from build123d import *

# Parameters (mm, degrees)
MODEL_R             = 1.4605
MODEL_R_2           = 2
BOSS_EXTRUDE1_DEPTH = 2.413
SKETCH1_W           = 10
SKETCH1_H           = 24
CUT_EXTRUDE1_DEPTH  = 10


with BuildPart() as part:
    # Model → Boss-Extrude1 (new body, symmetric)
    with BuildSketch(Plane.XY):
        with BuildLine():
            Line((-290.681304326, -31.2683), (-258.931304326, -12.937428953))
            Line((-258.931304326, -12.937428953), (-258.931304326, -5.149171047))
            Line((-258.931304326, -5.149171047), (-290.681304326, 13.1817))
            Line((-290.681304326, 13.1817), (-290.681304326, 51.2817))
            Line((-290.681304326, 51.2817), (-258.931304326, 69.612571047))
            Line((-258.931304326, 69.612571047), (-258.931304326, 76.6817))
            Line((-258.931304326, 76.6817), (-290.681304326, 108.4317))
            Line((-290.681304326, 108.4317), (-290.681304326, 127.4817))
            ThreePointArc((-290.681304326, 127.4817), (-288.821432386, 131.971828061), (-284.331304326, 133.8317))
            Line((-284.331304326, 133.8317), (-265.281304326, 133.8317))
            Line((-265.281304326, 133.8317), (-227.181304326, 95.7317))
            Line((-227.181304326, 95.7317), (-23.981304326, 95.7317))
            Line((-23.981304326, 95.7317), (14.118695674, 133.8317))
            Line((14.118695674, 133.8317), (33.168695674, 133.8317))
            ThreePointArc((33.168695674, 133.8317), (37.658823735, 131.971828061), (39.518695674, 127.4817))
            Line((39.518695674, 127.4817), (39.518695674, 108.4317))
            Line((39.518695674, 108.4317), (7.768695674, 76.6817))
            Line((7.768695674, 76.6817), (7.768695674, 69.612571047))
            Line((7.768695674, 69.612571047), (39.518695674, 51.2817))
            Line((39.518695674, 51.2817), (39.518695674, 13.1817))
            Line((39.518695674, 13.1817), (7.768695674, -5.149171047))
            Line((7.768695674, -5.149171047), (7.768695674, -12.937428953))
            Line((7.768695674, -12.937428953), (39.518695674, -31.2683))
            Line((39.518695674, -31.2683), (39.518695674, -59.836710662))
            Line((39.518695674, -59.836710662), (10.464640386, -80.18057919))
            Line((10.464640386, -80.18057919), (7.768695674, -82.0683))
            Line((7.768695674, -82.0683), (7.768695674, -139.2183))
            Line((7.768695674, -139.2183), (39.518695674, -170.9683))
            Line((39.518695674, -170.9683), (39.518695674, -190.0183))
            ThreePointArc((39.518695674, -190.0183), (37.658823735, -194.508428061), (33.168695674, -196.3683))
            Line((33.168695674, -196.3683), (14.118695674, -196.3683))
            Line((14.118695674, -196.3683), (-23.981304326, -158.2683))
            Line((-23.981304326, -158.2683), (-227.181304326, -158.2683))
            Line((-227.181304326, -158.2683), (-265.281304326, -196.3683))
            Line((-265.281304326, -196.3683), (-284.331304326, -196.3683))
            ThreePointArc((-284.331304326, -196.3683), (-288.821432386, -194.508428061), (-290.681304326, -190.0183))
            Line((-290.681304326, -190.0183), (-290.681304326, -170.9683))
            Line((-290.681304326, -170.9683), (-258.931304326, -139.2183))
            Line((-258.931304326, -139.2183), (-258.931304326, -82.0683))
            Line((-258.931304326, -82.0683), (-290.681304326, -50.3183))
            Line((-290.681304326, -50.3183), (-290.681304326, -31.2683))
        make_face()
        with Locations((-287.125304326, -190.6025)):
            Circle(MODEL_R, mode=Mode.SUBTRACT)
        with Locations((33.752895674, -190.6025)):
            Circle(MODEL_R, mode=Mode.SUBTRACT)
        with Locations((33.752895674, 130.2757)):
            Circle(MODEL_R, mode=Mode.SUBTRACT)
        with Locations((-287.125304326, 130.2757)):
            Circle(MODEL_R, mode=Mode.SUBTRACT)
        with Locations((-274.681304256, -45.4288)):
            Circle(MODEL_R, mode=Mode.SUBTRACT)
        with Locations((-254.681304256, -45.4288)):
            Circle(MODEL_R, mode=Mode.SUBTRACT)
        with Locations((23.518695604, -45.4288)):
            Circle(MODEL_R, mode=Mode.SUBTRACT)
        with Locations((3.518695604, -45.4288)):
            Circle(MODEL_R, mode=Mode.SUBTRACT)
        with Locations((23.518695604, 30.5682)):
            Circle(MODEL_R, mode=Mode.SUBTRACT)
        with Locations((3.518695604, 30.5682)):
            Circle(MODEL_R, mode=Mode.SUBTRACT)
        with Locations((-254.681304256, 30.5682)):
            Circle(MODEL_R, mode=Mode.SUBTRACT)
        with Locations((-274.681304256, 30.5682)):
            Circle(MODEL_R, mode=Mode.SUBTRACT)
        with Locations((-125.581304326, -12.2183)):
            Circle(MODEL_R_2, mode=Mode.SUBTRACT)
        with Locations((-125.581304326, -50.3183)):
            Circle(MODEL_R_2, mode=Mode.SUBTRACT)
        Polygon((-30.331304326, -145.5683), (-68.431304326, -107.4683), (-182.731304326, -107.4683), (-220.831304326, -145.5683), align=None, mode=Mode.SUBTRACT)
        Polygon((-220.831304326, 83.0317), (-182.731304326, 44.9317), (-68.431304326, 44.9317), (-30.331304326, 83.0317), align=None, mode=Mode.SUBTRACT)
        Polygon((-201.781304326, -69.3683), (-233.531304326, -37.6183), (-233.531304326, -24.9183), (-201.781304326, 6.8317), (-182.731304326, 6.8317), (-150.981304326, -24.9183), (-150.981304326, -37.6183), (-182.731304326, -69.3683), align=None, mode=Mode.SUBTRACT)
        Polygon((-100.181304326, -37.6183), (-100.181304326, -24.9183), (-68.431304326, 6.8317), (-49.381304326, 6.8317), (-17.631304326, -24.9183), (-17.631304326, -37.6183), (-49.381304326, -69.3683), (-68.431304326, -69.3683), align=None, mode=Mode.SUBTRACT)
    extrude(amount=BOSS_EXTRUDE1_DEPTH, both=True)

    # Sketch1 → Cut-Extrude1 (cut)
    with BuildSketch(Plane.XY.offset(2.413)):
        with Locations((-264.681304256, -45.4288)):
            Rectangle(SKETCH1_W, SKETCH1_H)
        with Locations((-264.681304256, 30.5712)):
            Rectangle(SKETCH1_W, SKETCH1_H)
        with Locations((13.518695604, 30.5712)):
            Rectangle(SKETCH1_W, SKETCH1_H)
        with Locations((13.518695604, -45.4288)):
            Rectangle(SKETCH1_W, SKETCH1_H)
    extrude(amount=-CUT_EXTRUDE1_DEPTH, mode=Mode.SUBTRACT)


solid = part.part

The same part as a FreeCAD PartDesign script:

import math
import FreeCAD as App
import Part
import Sketcher

V = App.Vector
Q = App.Units.Quantity


def add_polygon(sketch, points):
    """Adds a closed chain of lines whose ends are joined by coincident constraints."""
    first, n = sketch.GeometryCount, len(points)
    for a, b in zip(points, points[1:] + points[:1]):
        sketch.addGeometry(Part.LineSegment(App.Vector(*a, 0), App.Vector(*b, 0)), False)
    for i in range(n):
        sketch.addConstraint(Sketcher.Constraint("Coincident", first + i, 2, first + (i + 1) % n, 1))

doc = App.newDocument("Part")
body = doc.addObject("PartDesign::Body", "Body")

# Sketch on XY plane
sketch1 = body.newObject("Sketcher::SketchObject", "Sketch")
sketch1.AttachmentSupport = (doc.getObject("XY_Plane"), [""])
sketch1.MapMode = "FlatFace"
sketch1.addGeometry(Part.LineSegment(V(-258.9, -12.9, 0), V(-290.7, -31.3, 0)), False)  # 0
sketch1.addGeometry(Part.LineSegment(V(-290.7, -31.3, 0), V(-290.7, -50.3, 0)), False)  # 1
sketch1.addGeometry(Part.LineSegment(V(-290.7, -50.3, 0), V(-258.9, -82.1, 0)), False)  # 2
sketch1.addGeometry(Part.LineSegment(V(-258.9, -82.1, 0), V(-258.9, -139.2, 0)), False)  # 3
sketch1.addGeometry(Part.LineSegment(V(-258.9, -139.2, 0), V(-290.7, -171, 0)), False)  # 4
sketch1.addGeometry(Part.LineSegment(V(-290.7, -171, 0), V(-290.7, -190, 0)), False)  # 5
sketch1.addGeometry(Part.ArcOfCircle(Part.Circle(V(-284.3, -190, 0), V(0, 0, 1), 6.3), math.radians(180), math.radians(270)), False)  # 6
sketch1.addGeometry(Part.LineSegment(V(-284.3, -196.4, 0), V(-265.3, -196.4, 0)), False)  # 7
sketch1.addGeometry(Part.LineSegment(V(-265.3, -196.4, 0), V(-227.2, -158.3, 0)), False)  # 8
sketch1.addGeometry(Part.LineSegment(V(-227.2, -158.3, 0), V(-24, -158.3, 0)), False)  # 9
sketch1.addGeometry(Part.LineSegment(V(-24, -158.3, 0), V(14.1, -196.4, 0)), False)  # 10
sketch1.addGeometry(Part.LineSegment(V(14.1, -196.4, 0), V(33.2, -196.4, 0)), False)  # 11
sketch1.addGeometry(Part.ArcOfCircle(Part.Circle(V(33.2, -190, 0), V(0, 0, 1), 6.3), math.radians(-90), math.radians(0)), False)  # 12
sketch1.addGeometry(Part.LineSegment(V(39.5, -190, 0), V(39.5, -171, 0)), False)  # 13
sketch1.addGeometry(Part.LineSegment(V(39.5, -171, 0), V(7.8, -139.2, 0)), False)  # 14
sketch1.addGeometry(Part.LineSegment(V(7.8, -139.2, 0), V(7.8, -82.1, 0)), False)  # 15
sketch1.addGeometry(Part.LineSegment(V(7.8, -82.1, 0), V(10.5, -80.2, 0)), False)  # 16
sketch1.addGeometry(Part.LineSegment(V(10.5, -80.2, 0), V(39.5, -59.8, 0)), False)  # 17
sketch1.addGeometry(Part.LineSegment(V(39.5, -59.8, 0), V(39.5, -31.3, 0)), False)  # 18
sketch1.addGeometry(Part.LineSegment(V(39.5, -31.3, 0), V(7.8, -12.9, 0)), False)  # 19
sketch1.addGeometry(Part.LineSegment(V(7.8, -12.9, 0), V(7.8, -5.1, 0)), False)  # 20
sketch1.addGeometry(Part.LineSegment(V(7.8, -5.1, 0), V(39.5, 13.2, 0)), False)  # 21
sketch1.addGeometry(Part.LineSegment(V(39.5, 13.2, 0), V(39.5, 51.3, 0)), False)  # 22
sketch1.addGeometry(Part.LineSegment(V(39.5, 51.3, 0), V(7.8, 69.6, 0)), False)  # 23
sketch1.addGeometry(Part.LineSegment(V(7.8, 69.6, 0), V(7.8, 76.7, 0)), False)  # 24
sketch1.addGeometry(Part.LineSegment(V(7.8, 76.7, 0), V(39.5, 108.4, 0)), False)  # 25
sketch1.addGeometry(Part.LineSegment(V(39.5, 108.4, 0), V(39.5, 127.5, 0)), False)  # 26
sketch1.addGeometry(Part.ArcOfCircle(Part.Circle(V(33.2, 127.5, 0), V(0, 0, 1), 6.3), math.radians(0), math.radians(90)), False)  # 27
sketch1.addGeometry(Part.LineSegment(V(33.2, 133.8, 0), V(14.1, 133.8, 0)), False)  # 28
sketch1.addGeometry(Part.LineSegment(V(14.1, 133.8, 0), V(-24, 95.7, 0)), False)  # 29
sketch1.addGeometry(Part.LineSegment(V(-24, 95.7, 0), V(-227.2, 95.7, 0)), False)  # 30
sketch1.addGeometry(Part.LineSegment(V(-227.2, 95.7, 0), V(-265.3, 133.8, 0)), False)  # 31
sketch1.addGeometry(Part.LineSegment(V(-265.3, 133.8, 0), V(-284.3, 133.8, 0)), False)  # 32
sketch1.addGeometry(Part.ArcOfCircle(Part.Circle(V(-284.3, 127.5, 0), V(0, 0, 1), 6.3), math.radians(90), math.radians(180)), False)  # 33
sketch1.addGeometry(Part.LineSegment(V(-290.7, 127.5, 0), V(-290.7, 108.4, 0)), False)  # 34
sketch1.addGeometry(Part.LineSegment(V(-290.7, 108.4, 0), V(-258.9, 76.7, 0)), False)  # 35
sketch1.addGeometry(Part.LineSegment(V(-258.9, 76.7, 0), V(-258.9, 69.6, 0)), False)  # 36
sketch1.addGeometry(Part.LineSegment(V(-258.9, 69.6, 0), V(-290.7, 51.3, 0)), False)  # 37
sketch1.addGeometry(Part.LineSegment(V(-290.7, 51.3, 0), V(-290.7, 13.2, 0)), False)  # 38
sketch1.addGeometry(Part.LineSegment(V(-290.7, 13.2, 0), V(-258.9, -5.1, 0)), False)  # 39
sketch1.addGeometry(Part.LineSegment(V(-258.9, -5.1, 0), V(-258.9, -12.9, 0)), False)  # 40
sketch1.addGeometry(Part.Circle(V(33.8, -190.6, 0), V(0, 0, 1), 1.5), False)  # 41
add_polygon(sketch1, [(-30.3, -145.6), (-220.8, -145.6), (-182.7, -107.5), (-68.4, -107.5)])  # lines 42-45
sketch1.addGeometry(Part.Circle(V(23.5, -45.4, 0), V(0, 0, 1), 1.5), False)  # 46
sketch1.addGeometry(Part.Circle(V(3.5, -45.4, 0), V(0, 0, 1), 1.5), False)  # 47
add_polygon(sketch1, [(-100.2, -37.6), (-100.2, -24.9), (-68.4, 6.8), (-49.4, 6.8), (-17.6, -24.9), (-17.6, -37.6), (-49.4, -69.4), (-68.4, -69.4)])  # lines 48-55
sketch1.addGeometry(Part.Circle(V(-125.6, -50.3, 0), V(0, 0, 1), 2), False)  # 56
sketch1.addGeometry(Part.Circle(V(-287.1, -190.6, 0), V(0, 0, 1), 1.5), False)  # 57
add_polygon(sketch1, [(-201.8, -69.4), (-233.5, -37.6), (-233.5, -24.9), (-201.8, 6.8), (-182.7, 6.8), (-151, -24.9), (-151, -37.6), (-182.7, -69.4)])  # lines 58-65
sketch1.addGeometry(Part.Circle(V(-254.7, -45.4, 0), V(0, 0, 1), 1.5), False)  # 66
sketch1.addGeometry(Part.Circle(V(-274.7, -45.4, 0), V(0, 0, 1), 1.5), False)  # 67
sketch1.addGeometry(Part.Circle(V(23.5, 30.6, 0), V(0, 0, 1), 1.5), False)  # 68
sketch1.addGeometry(Part.Circle(V(3.5, 30.6, 0), V(0, 0, 1), 1.5), False)  # 69
sketch1.addGeometry(Part.Circle(V(-125.6, -12.2, 0), V(0, 0, 1), 2), False)  # 70
sketch1.addGeometry(Part.Circle(V(33.8, 130.3, 0), V(0, 0, 1), 1.5), False)  # 71
add_polygon(sketch1, [(-220.8, 83), (-30.3, 83), (-68.4, 44.9), (-182.7, 44.9)])  # lines 72-75
sketch1.addGeometry(Part.Circle(V(-254.7, 30.6, 0), V(0, 0, 1), 1.5), False)  # 76
sketch1.addGeometry(Part.Circle(V(-274.7, 30.6, 0), V(0, 0, 1), 1.5), False)  # 77
sketch1.addGeometry(Part.Circle(V(-287.1, 130.3, 0), V(0, 0, 1), 1.5), False)  # 78
sketch1.addConstraint([
    Sketcher.Constraint("Coincident", 0, 2, 1, 1),
    Sketcher.Constraint("Coincident", 1, 2, 2, 1),
    Sketcher.Constraint("Coincident", 2, 2, 3, 1),
    Sketcher.Constraint("Coincident", 3, 2, 4, 1),
    Sketcher.Constraint("Coincident", 4, 2, 5, 1),
    Sketcher.Constraint("Tangent", 5, 2, 6, 1),
    Sketcher.Constraint("Tangent", 6, 2, 7, 1),
    Sketcher.Constraint("Coincident", 7, 2, 8, 1),
    Sketcher.Constraint("Coincident", 8, 2, 9, 1),
    Sketcher.Constraint("Coincident", 9, 2, 10, 1),
    Sketcher.Constraint("Coincident", 10, 2, 11, 1),
    Sketcher.Constraint("Tangent", 11, 2, 12, 1),
    Sketcher.Constraint("Tangent", 12, 2, 13, 1),
    Sketcher.Constraint("Coincident", 13, 2, 14, 1),
    Sketcher.Constraint("Coincident", 14, 2, 15, 1),
    Sketcher.Constraint("Coincident", 15, 2, 16, 1),
    Sketcher.Constraint("Coincident", 16, 2, 17, 1),
    Sketcher.Constraint("Coincident", 17, 2, 18, 1),
    Sketcher.Constraint("Coincident", 18, 2, 19, 1),
    Sketcher.Constraint("Coincident", 19, 2, 20, 1),
    Sketcher.Constraint("Coincident", 20, 2, 21, 1),
    Sketcher.Constraint("Coincident", 21, 2, 22, 1),
    Sketcher.Constraint("Coincident", 22, 2, 23, 1),
    Sketcher.Constraint("Coincident", 23, 2, 24, 1),
    Sketcher.Constraint("Coincident", 24, 2, 25, 1),
    Sketcher.Constraint("Coincident", 25, 2, 26, 1),
    Sketcher.Constraint("Tangent", 26, 2, 27, 1),
    Sketcher.Constraint("Tangent", 27, 2, 28, 1),
    Sketcher.Constraint("Coincident", 28, 2, 29, 1),
    Sketcher.Constraint("Coincident", 29, 2, 30, 1),
    Sketcher.Constraint("Coincident", 30, 2, 31, 1),
    Sketcher.Constraint("Coincident", 31, 2, 32, 1),
    Sketcher.Constraint("Tangent", 32, 2, 33, 1),
    Sketcher.Constraint("Tangent", 33, 2, 34, 1),
    Sketcher.Constraint("Coincident", 34, 2, 35, 1),
    Sketcher.Constraint("Coincident", 35, 2, 36, 1),
    Sketcher.Constraint("Coincident", 36, 2, 37, 1),
    Sketcher.Constraint("Coincident", 37, 2, 38, 1),
    Sketcher.Constraint("Coincident", 38, 2, 39, 1),
    Sketcher.Constraint("Coincident", 39, 2, 40, 1),
    Sketcher.Constraint("Coincident", 40, 2, 0, 1),
    Sketcher.Constraint("Vertical", 1),
    Sketcher.Constraint("Vertical", 3),
    Sketcher.Constraint("Vertical", 5),
    Sketcher.Constraint("Horizontal", 7),
    Sketcher.Constraint("Horizontal", 9),
    Sketcher.Constraint("Horizontal", 11),
    Sketcher.Constraint("Vertical", 13),
    Sketcher.Constraint("Vertical", 15),
    Sketcher.Constraint("Vertical", 18),
    Sketcher.Constraint("Vertical", 20),
    Sketcher.Constraint("Vertical", 22),
    Sketcher.Constraint("Vertical", 24),
    Sketcher.Constraint("Vertical", 26),
    Sketcher.Constraint("Horizontal", 28),
    Sketcher.Constraint("Horizontal", 30),
    Sketcher.Constraint("Horizontal", 32),
    Sketcher.Constraint("Vertical", 34),
    Sketcher.Constraint("Vertical", 36),
    Sketcher.Constraint("Vertical", 38),
    Sketcher.Constraint("Vertical", 40),
    Sketcher.Constraint("Horizontal", 42),
    Sketcher.Constraint("Horizontal", 44),
    Sketcher.Constraint("Vertical", 48),
    Sketcher.Constraint("Horizontal", 50),
    Sketcher.Constraint("Vertical", 52),
    Sketcher.Constraint("Horizontal", 54),
    Sketcher.Constraint("Vertical", 59),
    Sketcher.Constraint("Horizontal", 61),
    Sketcher.Constraint("Vertical", 63),
    Sketcher.Constraint("Horizontal", 65),
    Sketcher.Constraint("Horizontal", 72),
    Sketcher.Constraint("Horizontal", 74),
    Sketcher.Constraint("Equal", 6, 12),
    Sketcher.Constraint("Equal", 12, 27),
    Sketcher.Constraint("Equal", 27, 33),
    Sketcher.Constraint("Equal", 41, 46),
    Sketcher.Constraint("Equal", 46, 47),
    Sketcher.Constraint("Equal", 47, 57),
    Sketcher.Constraint("Equal", 57, 66),
    Sketcher.Constraint("Equal", 66, 67),
    Sketcher.Constraint("Equal", 67, 68),
    Sketcher.Constraint("Equal", 68, 69),
    Sketcher.Constraint("Equal", 56, 70),
    Sketcher.Constraint("Equal", 69, 71),
    Sketcher.Constraint("Equal", 71, 76),
    Sketcher.Constraint("Equal", 76, 77),
    Sketcher.Constraint("Equal", 77, 78),
    Sketcher.Constraint("Perpendicular", 2, 4),
    Sketcher.Constraint("Parallel", 4, 8),
    Sketcher.Constraint("Perpendicular", 8, 10),
    Sketcher.Constraint("Parallel", 10, 14),
    Sketcher.Constraint("Parallel", 16, 17),
    Sketcher.Constraint("Parallel", 0, 21),
    Sketcher.Constraint("Parallel", 19, 23),
    Sketcher.Constraint("Perpendicular", 14, 25),
    Sketcher.Constraint("Parallel", 25, 29),
    Sketcher.Constraint("Perpendicular", 29, 31),
    Sketcher.Constraint("Parallel", 31, 35),
    Sketcher.Constraint("Parallel", 21, 37),
    Sketcher.Constraint("Parallel", 23, 39),
    Sketcher.Constraint("Perpendicular", 35, 43),
    Sketcher.Constraint("Perpendicular", 43, 45),
    Sketcher.Constraint("Perpendicular", 45, 49),
    Sketcher.Constraint("Perpendicular", 49, 51),
    Sketcher.Constraint("Perpendicular", 51, 53),
    Sketcher.Constraint("Perpendicular", 53, 55),
    Sketcher.Constraint("Parallel", 55, 58),
    Sketcher.Constraint("Perpendicular", 58, 60),
    Sketcher.Constraint("Perpendicular", 60, 62),
    Sketcher.Constraint("Perpendicular", 62, 64),
    Sketcher.Constraint("Parallel", 64, 73),
    Sketcher.Constraint("Perpendicular", 73, 75),
    Sketcher.Constraint("Horizontal", 6, 3, 12, 3),
    Sketcher.Constraint("Horizontal", 27, 3, 33, 3),
    Sketcher.Constraint("Horizontal", 46, 3, 47, 3),
    Sketcher.Constraint("Horizontal", 41, 3, 57, 3),
    Sketcher.Constraint("Horizontal", 47, 3, 66, 3),
    Sketcher.Constraint("Horizontal", 66, 3, 67, 3),
    Sketcher.Constraint("Horizontal", 68, 3, 69, 3),
    Sketcher.Constraint("Horizontal", 69, 3, 76, 3),
    Sketcher.Constraint("Horizontal", 76, 3, 77, 3),
    Sketcher.Constraint("Horizontal", 71, 3, 78, 3),
    Sketcher.Constraint("Horizontal", 56, 3, 1, 2),
    Sketcher.Constraint("Horizontal", 4, 2, 13, 2),
    Sketcher.Constraint("Horizontal", 3, 2, 14, 2),
    Sketcher.Constraint("Horizontal", 2, 2, 15, 2),
    Sketcher.Constraint("Horizontal", 0, 2, 18, 2),
    Sketcher.Constraint("Horizontal", 25, 2, 34, 2),
    Sketcher.Constraint("Horizontal", 24, 2, 35, 2),
    Sketcher.Constraint("Horizontal", 23, 2, 36, 2),
    Sketcher.Constraint("Horizontal", 22, 2, 37, 2),
    Sketcher.Constraint("Horizontal", 21, 2, 38, 2),
    Sketcher.Constraint("Horizontal", 20, 2, 39, 2),
    Sketcher.Constraint("Horizontal", 19, 2, 40, 2),
    Sketcher.Constraint("Horizontal", 48, 2, 51, 2),
    Sketcher.Constraint("Horizontal", 52, 2, 55, 2),
    Sketcher.Constraint("Horizontal", 55, 2, 58, 2),
    Sketcher.Constraint("Horizontal", 51, 2, 59, 2),
    Sketcher.Constraint("Horizontal", 50, 2, 60, 2),
    Sketcher.Constraint("Horizontal", 59, 2, 62, 2),
    Sketcher.Constraint("Horizontal", 58, 2, 63, 2),
    Sketcher.Constraint("Horizontal", 54, 2, 64, 2),
    Sketcher.Constraint("Vertical", 12, 3, 27, 3),
    Sketcher.Constraint("Vertical", 6, 3, 33, 3),
    Sketcher.Constraint("Vertical", 46, 3, 68, 3),
    Sketcher.Constraint("Vertical", 47, 3, 69, 3),
    Sketcher.Constraint("Vertical", 56, 3, 70, 3),
    Sketcher.Constraint("Vertical", 41, 3, 71, 3),
    Sketcher.Constraint("Vertical", 66, 3, 76, 3),
    Sketcher.Constraint("Vertical", 67, 3, 77, 3),
    Sketcher.Constraint("Vertical", 57, 3, 78, 3),
    Sketcher.Constraint("Vertical", 1, 2, 4, 2),
    Sketcher.Constraint("Vertical", 13, 2, 17, 2),
    Sketcher.Constraint("Vertical", 15, 2, 19, 2),
    Sketcher.Constraint("Vertical", 18, 2, 21, 2),
    Sketcher.Constraint("Vertical", 20, 2, 23, 2),
    Sketcher.Constraint("Vertical", 10, 2, 28, 2),
    Sketcher.Constraint("Vertical", 9, 2, 29, 2),
    Sketcher.Constraint("Vertical", 8, 2, 30, 2),
    Sketcher.Constraint("Vertical", 7, 2, 31, 2),
    Sketcher.Constraint("Vertical", 44, 2, 49, 2),
    Sketcher.Constraint("Vertical", 50, 2, 53, 2),
    Sketcher.Constraint("Vertical", 43, 2, 61, 2),
    Sketcher.Constraint("Vertical", 45, 2, 72, 2),
    Sketcher.Constraint("Vertical", 54, 2, 73, 2),
    Sketcher.Constraint("Vertical", 64, 2, 74, 2),
    Sketcher.Constraint("Equal", 7, 11),
    Sketcher.Constraint("Equal", 32, 50),
    Sketcher.Constraint("Equal", 54, 61),
    Sketcher.Constraint("Equal", 65, 1),
    Sketcher.Constraint("Equal", 1, 5),
    Sketcher.Constraint("Equal", 13, 26),
    Sketcher.Constraint("Equal", 31, 43),
    Sketcher.Constraint("Equal", 35, 49),
    Sketcher.Constraint("DistanceX", 9, 1, 9, 2, Q("8 in")),
    Sketcher.Constraint("Radius", 6, Q("0.25 in")),
    Sketcher.Constraint("Diameter", 41, Q("0.115 in")),
    Sketcher.Constraint("DistanceX", 42, 2, 42, 1, Q("7.5 in")),
    Sketcher.Constraint("DistanceX", 44, 1, 44, 2, Q("4.5 in")),
    Sketcher.Constraint("DistanceY", 22, 1, 22, 2, Q("1.5 in")),
    Sketcher.Constraint("DistanceY", 48, 1, 48, 2, Q("0.5 in")),
    Sketcher.Constraint("Angle", 0, Q("-150 deg")),
    Sketcher.Constraint("Angle", 16, Q("35 deg")),
    Sketcher.Constraint("DistanceX", 7, 1, 7, 2, Q("0.75 in")),
    Sketcher.Constraint("DistanceY", 3, 2, 3, 1, Q("2.25 in")),
    Sketcher.Constraint("Diameter", 56, 4.0),
    Sketcher.Constraint("DistanceY", 18, 1, 18, 2, 28.568411),
    Sketcher.Constraint("DistanceY", 24, 1, 24, 2, 7.069129),
    Sketcher.Constraint("DistanceY", 6, 3, -1, 1, 190.0183),
    Sketcher.Constraint("DistanceY", -1, 1, 27, 3, 127.4817),
    Sketcher.Constraint("DistanceY", 41, 3, -1, 1, 190.6025),
    Sketcher.Constraint("DistanceY", 46, 3, -1, 1, 45.4288),
    Sketcher.Constraint("DistanceY", -1, 1, 68, 3, 30.5682),
    Sketcher.Constraint("DistanceY", 70, 3, -1, 1, 12.2183),
    Sketcher.Constraint("DistanceY", -1, 1, 71, 3, 130.2757),
    Sketcher.Constraint("DistanceY", 42, 2, -1, 1, 145.5683),
    Sketcher.Constraint("DistanceY", 48, 2, -1, 1, 24.9183),
    Sketcher.Constraint("DistanceY", -1, 1, 72, 2, 83.0317),
    Sketcher.Constraint("Distance", 16, 3.291141),
    Sketcher.Constraint("DistanceX", -1, 1, 16, 2, 10.46464),
    Sketcher.Constraint("DistanceX", -1, 1, 41, 3, 33.752896),
    Sketcher.Constraint("DistanceX", -1, 1, 46, 3, 23.518696),
    Sketcher.Constraint("DistanceX", -1, 1, 47, 3, 3.518696),
    Sketcher.Constraint("DistanceX", 56, 3, -1, 1, 125.581304),
    Sketcher.Constraint("DistanceX", 57, 3, -1, 1, 287.125304),
    Sketcher.Constraint("DistanceX", 66, 3, -1, 1, 254.681304),
    Sketcher.Constraint("DistanceX", 67, 3, -1, 1, 274.681304),
    Sketcher.Constraint("DistanceX", 42, 2, -1, 1, 220.831304),
])
pad1 = body.newObject("PartDesign::Pad", "Pad")
pad1.Profile = sketch1
pad1.Length = Q("0.19 in")
pad1.Midplane = True

# Sketch on XY plane
sketch2 = body.newObject("Sketcher::SketchObject", "Sketch001")
sketch2.AttachmentSupport = (doc.getObject("XY_Plane"), [""])
sketch2.MapMode = "FlatFace"
sketch2.AttachmentOffset = App.Placement(V(0, 0, 0.095 * 25.4), App.Rotation())
add_polygon(sketch2, [(-270, -33), (-270, -57), (-260, -57), (-260, -33)])  # lines 0-3
add_polygon(sketch2, [(-270, 43), (-270, 19), (-260, 19), (-260, 43)])  # lines 4-7
add_polygon(sketch2, [(9, 43), (9, 19), (19, 19), (19, 43)])  # lines 8-11
add_polygon(sketch2, [(9, -33), (9, -57), (19, -57), (19, -33)])  # lines 12-15
sketch2.addConstraint([
    Sketcher.Constraint("Vertical", 0),
    Sketcher.Constraint("Horizontal", 1),
    Sketcher.Constraint("Vertical", 2),
    Sketcher.Constraint("Horizontal", 3),
    Sketcher.Constraint("Vertical", 4),
    Sketcher.Constraint("Horizontal", 5),
    Sketcher.Constraint("Vertical", 6),
    Sketcher.Constraint("Horizontal", 7),
    Sketcher.Constraint("Vertical", 8),
    Sketcher.Constraint("Horizontal", 9),
    Sketcher.Constraint("Vertical", 10),
    Sketcher.Constraint("Horizontal", 11),
    Sketcher.Constraint("Vertical", 12),
    Sketcher.Constraint("Horizontal", 13),
    Sketcher.Constraint("Vertical", 14),
    Sketcher.Constraint("Horizontal", 15),
    Sketcher.Constraint("Horizontal", 5, 2, 8, 2),
    Sketcher.Constraint("Horizontal", 7, 2, 10, 2),
    Sketcher.Constraint("Horizontal", 1, 2, 12, 2),
    Sketcher.Constraint("Horizontal", 3, 2, 14, 2),
    Sketcher.Constraint("Vertical", 3, 2, 4, 2),
    Sketcher.Constraint("Vertical", 2, 2, 5, 2),
    Sketcher.Constraint("Vertical", 11, 2, 12, 2),
    Sketcher.Constraint("Vertical", 10, 2, 13, 2),
    Sketcher.Constraint("Equal", 7, 9),
    Sketcher.Constraint("Equal", 2, 4),
    Sketcher.Constraint("DistanceX", 1, 1, 1, 2, 10.0),
    Sketcher.Constraint("DistanceY", 0, 2, 0, 1, 24.0),
    Sketcher.Constraint("DistanceY", 0, 2, -1, 1, 57.4288),
    Sketcher.Constraint("DistanceY", -1, 1, 4, 2, 18.5712),
    Sketcher.Constraint("DistanceX", 5, 2, 8, 2, 268.2),
    Sketcher.Constraint("DistanceX", 0, 2, -1, 1, 269.681304),
])
pocket1 = body.newObject("PartDesign::Pocket", "Pocket")
pocket1.Profile = sketch2
pocket1.Length = 10

doc.recompute()
